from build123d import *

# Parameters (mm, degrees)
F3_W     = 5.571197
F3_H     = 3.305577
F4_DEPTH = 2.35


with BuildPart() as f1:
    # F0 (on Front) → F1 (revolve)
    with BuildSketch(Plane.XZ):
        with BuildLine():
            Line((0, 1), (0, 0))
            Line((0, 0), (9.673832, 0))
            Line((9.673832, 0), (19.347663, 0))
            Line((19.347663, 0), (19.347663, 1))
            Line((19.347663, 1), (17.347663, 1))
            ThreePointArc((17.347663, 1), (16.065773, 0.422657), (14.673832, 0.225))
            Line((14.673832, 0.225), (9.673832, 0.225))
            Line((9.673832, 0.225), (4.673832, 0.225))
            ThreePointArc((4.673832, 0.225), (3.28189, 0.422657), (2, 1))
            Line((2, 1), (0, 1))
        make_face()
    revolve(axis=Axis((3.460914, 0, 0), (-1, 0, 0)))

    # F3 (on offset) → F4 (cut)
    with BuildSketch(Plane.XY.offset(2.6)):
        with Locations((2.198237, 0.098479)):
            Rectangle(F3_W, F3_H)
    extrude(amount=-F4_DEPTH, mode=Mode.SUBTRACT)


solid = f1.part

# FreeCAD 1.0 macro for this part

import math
import FreeCAD as App
import Part
import Sketcher

V = App.Vector
Q = App.Units.Quantity

doc = App.newDocument("Part")
body = doc.addObject("PartDesign::Body", "Body")

sketch1 = body.newObject("Sketcher::SketchObject", "Sketch")
sketch1.AttachmentSupport = (doc.getObject("XZ_Plane"), [""])
sketch1.MapMode = "FlatFace"
sketch1.addGeometry([
    Part.LineSegment(V(0, 1, 0), V(0, 0, 0)),
    Part.LineSegment(V(0, 0, 0), V(19.3, 0, 0)),
    Part.LineSegment(V(19.3, 0, 0), V(19.3, 1, 0)),
    Part.LineSegment(V(19.3, 1, 0), V(17.3, 1, 0)),
    Part.ArcOfCircle(Part.Circle(V(14.7, 5.2, 0), V(0, 0, 1), 5), math.radians(-90), math.radians(-58)),
    Part.LineSegment(V(14.7, 0.2, 0), V(4.7, 0.2, 0)),
    Part.ArcOfCircle(Part.Circle(V(4.7, 5.2, 0), V(0, 0, 1), 5), math.radians(-122), math.radians(-90)),
    Part.LineSegment(V(2, 1, 0), V(0, 1, 0)),
], False)
sketch1.addConstraint([
    Sketcher.Constraint("Coincident", 0, 2, 1, 1),
    Sketcher.Constraint("Coincident", 1, 2, 2, 1),
    Sketcher.Constraint("Coincident", 2, 2, 3, 1),
    Sketcher.Constraint("Coincident", 3, 2, 4, 2),
    Sketcher.Constraint("Tangent", 4, 1, 5, 1),
    Sketcher.Constraint("Tangent", 5, 2, 6, 2),
    Sketcher.Constraint("Coincident", 6, 1, 7, 1),
    Sketcher.Constraint("Coincident", 7, 2, 0, 1),
    Sketcher.Constraint("Vertical", 0),
    Sketcher.Constraint("Horizontal", 1),
    Sketcher.Constraint("Vertical", 2),
    Sketcher.Constraint("Horizontal", 3),
    Sketcher.Constraint("Horizontal", 5),
    Sketcher.Constraint("Horizontal", 7),
    Sketcher.Constraint("Coincident", 0, 2, -1, 1),
    Sketcher.Constraint("Equal", 4, 6),
    Sketcher.Constraint("Horizontal", 3, 2, 6, 1),
    Sketcher.Constraint("Equal", 3, 7),
    Sketcher.Constraint("Radius", 4, Q("5.000001 mm")),
    Sketcher.Constraint("DistanceX", 3, 2, 3, 1, Q("2 mm")),
    Sketcher.Constraint("DistanceX", 5, 2, 5, 1, Q("10 mm")),
    Sketcher.Constraint("DistanceY", 0, 2, 0, 1, Q("1 mm")),
    Sketcher.Constraint("DistanceY", -1, 1, 4, 3, Q("5.225001 mm")),
])
revolution = body.newObject("PartDesign::Revolution", "Revolution")
revolution.Profile = sketch1
revolution.ReferenceAxis = (sketch1, ["H_Axis"])
revolution.Angle = 360

sketch2 = body.newObject("Sketcher::SketchObject", "Sketch001")
sketch2.AttachmentSupport = (doc.getObject("XY_Plane"), [""])
sketch2.MapMode = "FlatFace"
sketch2.AttachmentOffset = App.Placement(V(0, 0, 2.6), App.Rotation())
sketch2.addGeometry([
    Part.LineSegment(V(-0.6, 1.8, 0), V(-0.6, -1.6, 0)),
    Part.LineSegment(V(-0.6, -1.6, 0), V(5, -1.6, 0)),
    Part.LineSegment(V(5, -1.6, 0), V(5, 1.8, 0)),
    Part.LineSegment(V(5, 1.8, 0), V(-0.6, 1.8, 0)),
], False)
sketch2.addConstraint([
    Sketcher.Constraint("Coincident", 0, 2, 1, 1),
    Sketcher.Constraint("Coincident", 1, 2, 2, 1),
    Sketcher.Constraint("Coincident", 2, 2, 3, 1),
    Sketcher.Constraint("Coincident", 3, 2, 0, 1),
    Sketcher.Constraint("Vertical", 0),
    Sketcher.Constraint("Horizontal", 1),
    Sketcher.Constraint("Vertical", 2),
    Sketcher.Constraint("Horizontal", 3),
    Sketcher.Constraint("DistanceX", 1, 1, 1, 2, Q("5.571197 mm")),
    Sketcher.Constraint("DistanceY", 0, 2, 0, 1, Q("3.305577 mm")),
    Sketcher.Constraint("DistanceX", 0, 2, -1, 1, Q("0.587361 mm")),
    Sketcher.Constraint("DistanceY", 0, 2, -1, 1, Q("1.55431 mm")),
])
pocket1 = body.newObject("PartDesign::Pocket", "Pocket")
pocket1.Profile = sketch2
pocket1.Length = 2.35

doc.recompute()
